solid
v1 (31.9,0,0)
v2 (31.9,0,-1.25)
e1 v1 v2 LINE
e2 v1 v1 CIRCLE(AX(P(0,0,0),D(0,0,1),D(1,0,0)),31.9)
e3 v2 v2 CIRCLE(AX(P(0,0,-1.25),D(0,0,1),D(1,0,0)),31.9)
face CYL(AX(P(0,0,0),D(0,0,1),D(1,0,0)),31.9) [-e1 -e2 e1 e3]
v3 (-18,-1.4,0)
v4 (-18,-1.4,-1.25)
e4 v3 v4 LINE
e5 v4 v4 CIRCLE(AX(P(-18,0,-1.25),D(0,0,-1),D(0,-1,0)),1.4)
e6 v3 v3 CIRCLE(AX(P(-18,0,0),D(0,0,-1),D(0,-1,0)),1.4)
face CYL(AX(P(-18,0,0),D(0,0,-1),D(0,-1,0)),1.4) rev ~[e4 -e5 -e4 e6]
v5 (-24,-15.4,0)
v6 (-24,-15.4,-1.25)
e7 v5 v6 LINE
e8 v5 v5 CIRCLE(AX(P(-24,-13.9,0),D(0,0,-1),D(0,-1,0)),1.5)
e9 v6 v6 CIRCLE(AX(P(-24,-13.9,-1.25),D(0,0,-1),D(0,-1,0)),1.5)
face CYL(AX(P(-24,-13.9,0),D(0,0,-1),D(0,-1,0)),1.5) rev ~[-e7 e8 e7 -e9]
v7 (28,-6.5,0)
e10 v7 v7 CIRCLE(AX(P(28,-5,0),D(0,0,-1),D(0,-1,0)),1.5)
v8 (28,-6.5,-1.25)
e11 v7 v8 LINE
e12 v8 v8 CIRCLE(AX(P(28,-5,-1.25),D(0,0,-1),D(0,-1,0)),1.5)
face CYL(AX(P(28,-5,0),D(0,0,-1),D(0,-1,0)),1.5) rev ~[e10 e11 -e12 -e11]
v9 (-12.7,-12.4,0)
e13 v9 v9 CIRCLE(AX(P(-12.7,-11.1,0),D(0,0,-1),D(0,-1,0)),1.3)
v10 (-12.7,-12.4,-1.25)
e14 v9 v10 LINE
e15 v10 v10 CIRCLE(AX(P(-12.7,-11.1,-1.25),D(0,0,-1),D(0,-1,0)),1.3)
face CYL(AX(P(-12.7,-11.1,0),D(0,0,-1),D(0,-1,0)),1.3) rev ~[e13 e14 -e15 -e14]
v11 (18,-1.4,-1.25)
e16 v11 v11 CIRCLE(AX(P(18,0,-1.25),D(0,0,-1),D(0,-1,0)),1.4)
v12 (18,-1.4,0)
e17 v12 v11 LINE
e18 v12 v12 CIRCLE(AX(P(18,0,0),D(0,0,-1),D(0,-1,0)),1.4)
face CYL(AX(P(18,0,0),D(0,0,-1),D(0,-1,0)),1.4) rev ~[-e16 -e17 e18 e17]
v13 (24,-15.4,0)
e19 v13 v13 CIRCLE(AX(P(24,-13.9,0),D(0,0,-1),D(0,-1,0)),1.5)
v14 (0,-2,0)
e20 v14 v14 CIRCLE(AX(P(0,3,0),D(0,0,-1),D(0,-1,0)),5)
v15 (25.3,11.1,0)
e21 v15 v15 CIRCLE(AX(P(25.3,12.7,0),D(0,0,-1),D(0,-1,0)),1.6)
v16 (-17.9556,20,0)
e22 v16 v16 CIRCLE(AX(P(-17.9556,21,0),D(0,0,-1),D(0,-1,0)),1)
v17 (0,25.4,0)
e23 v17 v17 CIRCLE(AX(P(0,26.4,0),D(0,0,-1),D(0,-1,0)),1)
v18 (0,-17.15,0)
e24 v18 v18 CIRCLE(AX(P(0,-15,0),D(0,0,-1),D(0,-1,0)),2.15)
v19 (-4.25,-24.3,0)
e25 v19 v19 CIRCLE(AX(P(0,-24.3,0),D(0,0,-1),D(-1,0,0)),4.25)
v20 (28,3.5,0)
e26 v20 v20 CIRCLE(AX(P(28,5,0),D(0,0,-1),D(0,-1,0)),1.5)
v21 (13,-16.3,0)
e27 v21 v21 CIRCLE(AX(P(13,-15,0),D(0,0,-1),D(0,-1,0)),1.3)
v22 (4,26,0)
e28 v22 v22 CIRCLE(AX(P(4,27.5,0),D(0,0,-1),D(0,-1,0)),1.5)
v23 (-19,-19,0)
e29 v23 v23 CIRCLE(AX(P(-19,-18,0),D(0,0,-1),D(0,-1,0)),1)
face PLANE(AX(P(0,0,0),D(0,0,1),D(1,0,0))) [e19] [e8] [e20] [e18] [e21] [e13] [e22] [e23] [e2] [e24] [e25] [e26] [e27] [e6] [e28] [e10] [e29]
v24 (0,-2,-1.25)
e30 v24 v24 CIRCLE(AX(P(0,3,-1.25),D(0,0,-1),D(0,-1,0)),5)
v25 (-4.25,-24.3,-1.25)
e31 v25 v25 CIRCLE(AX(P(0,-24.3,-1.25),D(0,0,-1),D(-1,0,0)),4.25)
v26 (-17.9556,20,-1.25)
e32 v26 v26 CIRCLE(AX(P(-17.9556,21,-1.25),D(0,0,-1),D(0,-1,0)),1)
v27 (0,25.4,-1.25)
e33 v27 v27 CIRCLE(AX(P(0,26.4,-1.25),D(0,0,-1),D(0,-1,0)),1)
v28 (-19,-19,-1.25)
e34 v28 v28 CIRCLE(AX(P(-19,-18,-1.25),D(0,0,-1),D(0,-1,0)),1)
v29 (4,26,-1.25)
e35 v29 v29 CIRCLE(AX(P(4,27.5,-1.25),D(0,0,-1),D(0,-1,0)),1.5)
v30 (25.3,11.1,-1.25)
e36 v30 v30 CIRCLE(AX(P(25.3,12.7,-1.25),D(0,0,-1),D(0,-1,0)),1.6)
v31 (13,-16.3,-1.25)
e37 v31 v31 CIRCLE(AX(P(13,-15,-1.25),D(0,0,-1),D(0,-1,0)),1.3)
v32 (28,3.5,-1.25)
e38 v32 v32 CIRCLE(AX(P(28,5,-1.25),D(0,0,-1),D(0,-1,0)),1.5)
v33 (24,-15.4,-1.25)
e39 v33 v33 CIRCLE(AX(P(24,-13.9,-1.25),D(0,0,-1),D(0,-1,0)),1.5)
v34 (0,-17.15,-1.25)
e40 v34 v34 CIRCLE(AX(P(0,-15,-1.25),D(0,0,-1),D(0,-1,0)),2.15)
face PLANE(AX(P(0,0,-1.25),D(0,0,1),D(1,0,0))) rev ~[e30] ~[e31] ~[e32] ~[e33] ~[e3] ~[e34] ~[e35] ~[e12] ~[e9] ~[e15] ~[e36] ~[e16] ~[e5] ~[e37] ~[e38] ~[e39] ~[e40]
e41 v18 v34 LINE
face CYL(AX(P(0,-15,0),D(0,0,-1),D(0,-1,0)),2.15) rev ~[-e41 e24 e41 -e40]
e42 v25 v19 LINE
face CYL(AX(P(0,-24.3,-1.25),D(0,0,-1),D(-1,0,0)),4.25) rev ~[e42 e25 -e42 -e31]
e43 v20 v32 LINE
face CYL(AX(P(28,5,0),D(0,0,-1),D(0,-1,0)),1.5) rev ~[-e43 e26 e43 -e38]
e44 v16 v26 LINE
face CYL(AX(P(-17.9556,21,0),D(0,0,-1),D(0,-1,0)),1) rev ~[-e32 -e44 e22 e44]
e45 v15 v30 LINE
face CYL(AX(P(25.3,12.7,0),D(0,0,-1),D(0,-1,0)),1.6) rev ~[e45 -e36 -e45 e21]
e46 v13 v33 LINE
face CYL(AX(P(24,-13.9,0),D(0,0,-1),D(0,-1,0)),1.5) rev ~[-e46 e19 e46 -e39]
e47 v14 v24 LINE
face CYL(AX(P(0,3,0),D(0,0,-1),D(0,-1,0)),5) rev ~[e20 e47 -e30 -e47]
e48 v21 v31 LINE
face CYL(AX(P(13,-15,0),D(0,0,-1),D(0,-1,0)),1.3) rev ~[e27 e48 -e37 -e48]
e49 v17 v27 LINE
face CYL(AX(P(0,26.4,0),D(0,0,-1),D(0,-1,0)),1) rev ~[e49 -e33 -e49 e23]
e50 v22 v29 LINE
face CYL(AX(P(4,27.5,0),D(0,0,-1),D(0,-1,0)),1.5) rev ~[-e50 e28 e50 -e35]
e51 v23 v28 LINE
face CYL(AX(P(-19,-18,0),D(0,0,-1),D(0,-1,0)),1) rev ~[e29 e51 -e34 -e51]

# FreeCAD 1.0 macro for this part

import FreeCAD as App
import Part
import Sketcher

V = App.Vector

doc = App.newDocument("Part")
body = doc.addObject("PartDesign::Body", "Body")

# Sketch on XY plane
sketch1 = body.newObject("Sketcher::SketchObject", "Sketch")
sketch1.AttachmentSupport = (doc.getObject("XY_Plane"), [""])
sketch1.MapMode = "FlatFace"
sketch1.addGeometry(Part.Circle(V(0, 0, 0), V(0, 0, 1), 31.9), False)
sketch1.addConstraint(Sketcher.Constraint("Coincident", 0, 3, -1, 1))
sketch1.addConstraint(Sketcher.Constraint("Diameter", 0, 63.8))
pad1 = body.newObject("PartDesign::Pad", "Pad")
pad1.Profile = sketch1
pad1.Length = 1.25
pad1.Reversed = True

# Sketch on XY plane
sketch2 = body.newObject("Sketcher::SketchObject", "Sketch001")
sketch2.AttachmentSupport = (doc.getObject("XY_Plane"), [""])
sketch2.MapMode = "FlatFace"
sketch2.addGeometry(Part.Circle(V(-19, -18, 0), V(0, 0, 1), 1), False)
sketch2.addConstraint(Sketcher.Constraint("Diameter", 0, 2.0))
sketch2.addConstraint(Sketcher.Constraint("DistanceX", 0, 3, -1, 1, 19.0))
sketch2.addConstraint(Sketcher.Constraint("DistanceY", 0, 3, -1, 1, 18.0))
doc.recompute()
hole = body.newObject("PartDesign::Hole", "Hole")
hole.Profile = sketch2
hole.ThreadType = "None"
hole.Diameter = 2
hole.DepthType = "ThroughAll"

# Sketch on XY plane
sketch3 = body.newObject("Sketcher::SketchObject", "Sketch002")
sketch3.AttachmentSupport = (doc.getObject("XY_Plane"), [""])
sketch3.MapMode = "FlatFace"
sketch3.addGeometry(Part.Circle(V(-17.9556, 21, 0), V(0, 0, 1), 1), False)
sketch3.addGeometry(Part.Circle(V(0, 26.4, 0), V(0, 0, 1), 1), False)
sketch3.addConstraint(Sketcher.Constraint("Equal", 0, 1))
sketch3.addConstraint(Sketcher.Constraint("PointOnObject", 1, 3, -2))
sketch3.addConstraint(Sketcher.Constraint("Diameter", 0, 2.0))
sketch3.addConstraint(Sketcher.Constraint("DistanceY", -1, 1, 0, 3, 21.0))
sketch3.addConstraint(Sketcher.Constraint("DistanceY", -1, 1, 1, 3, 26.4))
sketch3.addConstraint(Sketcher.Constraint("DistanceX", 0, 3, -1, 1, 17.9556))
doc.recompute()
hole2 = body.newObject("PartDesign::Hole", "Hole001")
hole2.Profile = sketch3
hole2.ThreadType = "None"
hole2.Diameter = 2
hole2.DepthType = "ThroughAll"

# Sketch on XY plane
sketch4 = body.newObject("Sketcher::SketchObject", "Sketch003")
sketch4.AttachmentSupport = (doc.getObject("XY_Plane"), [""])
sketch4.MapMode = "FlatFace"
sketch4.addGeometry(Part.Circle(V(-12.7, -11.1, 0), V(0, 0, 1), 1.3), False)
sketch4.addGeometry(Part.Circle(V(13, -15, 0), V(0, 0, 1), 1.3), False)
sketch4.addConstraint(Sketcher.Constraint("Equal", 0, 1))
sketch4.addConstraint(Sketcher.Constraint("Diameter", 0, 2.6))
sketch4.addConstraint(Sketcher.Constraint("DistanceX", -1, 1, 1, 3, 13.0))
sketch4.addConstraint(Sketcher.Constraint("DistanceY", 1, 3, -1, 1, 15.0))
sketch4.addConstraint(Sketcher.Constraint("DistanceX", 0, 3, -1, 1, 12.7))
sketch4.addConstraint(Sketcher.Constraint("DistanceY", 0, 3, -1, 1, 11.1))
doc.recompute()
hole3 = body.newObject("PartDesign::Hole", "Hole002")
hole3.Profile = sketch4
hole3.ThreadType = "None"
hole3.Diameter = 2.6
hole3.DepthType = "ThroughAll"

# Sketch on XY plane
sketch5 = body.newObject("Sketcher::SketchObject", "Sketch004")
sketch5.AttachmentSupport = (doc.getObject("XY_Plane"), [""])
sketch5.MapMode = "FlatFace"
sketch5.addGeometry(Part.Circle(V(18, 0, 0), V(0, 0, 1), 1.4), False)
sketch5.addGeometry(Part.Circle(V(-18, 0, 0), V(0, 0, 1), 1.4), False)
sketch5.addConstraint(Sketcher.Constraint("Equal", 0, 1))
sketch5.addConstraint(Sketcher.Constraint("Symmetric", 0, 3, 1, 3, -1, 1))
sketch5.addConstraint(Sketcher.Constraint("PointOnObject", 0, 3, -1))
sketch5.addConstraint(Sketcher.Constraint("Diameter", 0, 2.8))
sketch5.addConstraint(Sketcher.Constraint("DistanceX", -1, 1, 0, 3, 18.0))
doc.recompute()
hole4 = body.newObject("PartDesign::Hole", "Hole003")
hole4.Profile = sketch5
hole4.ThreadType = "None"
hole4.Diameter = 2.8
hole4.DepthType = "ThroughAll"

# Sketch on XY plane
sketch6 = body.newObject("Sketcher::SketchObject", "Sketch005")
sketch6.AttachmentSupport = (doc.getObject("XY_Plane"), [""])
sketch6.MapMode = "FlatFace"
sketch6.addGeometry(Part.Circle(V(24, -13.9, 0), V(0, 0, 1), 1.5), False)
sketch6.addGeometry(Part.Circle(V(4, 27.5, 0), V(0, 0, 1), 1.5), False)
sketch6.addGeometry(Part.Circle(V(-24, -13.9, 0), V(0, 0, 1), 1.5), False)
sketch6.addConstraint(Sketcher.Constraint("Equal", 0, 1))
sketch6.addConstraint(Sketcher.Constraint("Equal", 1, 2))
sketch6.addConstraint(Sketcher.Constraint("Symmetric", 0, 3, 2, 3, -2))
sketch6.addConstraint(Sketcher.Constraint("Diameter", 0, 3.0))
sketch6.addConstraint(Sketcher.Constraint("DistanceX", -1, 1, 0, 3, 24.0))
sketch6.addConstraint(Sketcher.Constraint("DistanceX", -1, 1, 1, 3, 4.0))
sketch6.addConstraint(Sketcher.Constraint("DistanceY", 0, 3, -1, 1, 13.9))
sketch6.addConstraint(Sketcher.Constraint("DistanceY", -1, 1, 1, 3, 27.5))
doc.recompute()
hole5 = body.newObject("PartDesign::Hole", "Hole004")
hole5.Profile = sketch6
hole5.ThreadType = "None"
hole5.Diameter = 3
hole5.DepthType = "ThroughAll"

# Sketch on XY plane
sketch7 = body.newObject("Sketcher::SketchObject", "Sketch006")
sketch7.AttachmentSupport = (doc.getObject("XY_Plane"), [""])
sketch7.MapMode = "FlatFace"
sketch7.addGeometry(Part.Circle(V(25.3, 12.7, 0), V(0, 0, 1), 1.6), False)
sketch7.addConstraint(Sketcher.Constraint("Diameter", 0, 3.2))
sketch7.addConstraint(Sketcher.Constraint("DistanceX", -1, 1, 0, 3, 25.3))
sketch7.addConstraint(Sketcher.Constraint("DistanceY", -1, 1, 0, 3, 12.7))
doc.recompute()
hole6 = body.newObject("PartDesign::Hole", "Hole005")
hole6.Profile = sketch7
hole6.ThreadType = "None"
hole6.Diameter = 3.2
hole6.DepthType = "ThroughAll"

# Sketch on XY plane
sketch8 = body.newObject("Sketcher::SketchObject", "Sketch007")
sketch8.AttachmentSupport = (doc.getObject("XY_Plane"), [""])
sketch8.MapMode = "FlatFace"
sketch8.addGeometry(Part.Circle(V(0, -15, 0), V(0, 0, 1), 2.15), False)
sketch8.addConstraint(Sketcher.Constraint("PointOnObject", 0, 3, -2))
sketch8.addConstraint(Sketcher.Constraint("Diameter", 0, 4.3))
sketch8.addConstraint(Sketcher.Constraint("DistanceY", 0, 3, -1, 1, 15.0))
doc.recompute()
hole7 = body.newObject("PartDesign::Hole", "Hole006")
hole7.Profile = sketch8
hole7.ThreadType = "None"
hole7.Diameter = 4.3
hole7.DepthType = "ThroughAll"

# Sketch on XY plane
sketch9 = body.newObject("Sketcher::SketchObject", "Sketch008")
sketch9.AttachmentSupport = (doc.getObject("XY_Plane"), [""])
sketch9.MapMode = "FlatFace"
sketch9.addGeometry(Part.Circle(V(0, 3, 0), V(0, 0, 1), 5), False)
sketch9.addConstraint(Sketcher.Constraint("PointOnObject", 0, 3, -2))
sketch9.addConstraint(Sketcher.Constraint("Diameter", 0, 10.0))
sketch9.addConstraint(Sketcher.Constraint("DistanceY", -1, 1, 0, 3, 3.0))
doc.recompute()
hole8 = body.newObject("PartDesign::Hole", "Hole007")
hole8.Profile = sketch9
hole8.ThreadType = "None"
hole8.Diameter = 10
hole8.DepthType = "ThroughAll"

# Sketch on XY plane
sketch10 = body.newObject("Sketcher::SketchObject", "Sketch009")
sketch10.AttachmentSupport = (doc.getObject("XY_Plane"), [""])
sketch10.MapMode = "FlatFace"
sketch10.addGeometry(Part.Circle(V(28, -5, 0), V(0, 0, 1), 1.5), False)
sketch10.addGeometry(Part.Circle(V(28, 5, 0), V(0, 0, 1), 1.5), False)
sketch10.addConstraint(Sketcher.Constraint("Equal", 0, 1))
sketch10.addConstraint(Sketcher.Constraint("Symmetric", 0, 3, 1, 3, -1))
sketch10.addConstraint(Sketcher.Constraint("Diameter", 0, 3.0))
sketch10.addConstraint(Sketcher.Constraint("DistanceX", -1, 1, 0, 3, 28.0))
sketch10.addConstraint(Sketcher.Constraint("DistanceY", 0, 3, -1, 1, 5.0))
doc.recompute()
hole9 = body.newObject("PartDesign::Hole", "Hole008")
hole9.Profile = sketch10
hole9.ThreadType = "None"
hole9.Diameter = 3
hole9.DepthType = "ThroughAll"

# Sketch on XY plane
sketch11 = body.newObject("Sketcher::SketchObject", "Sketch010")
sketch11.AttachmentSupport = (doc.getObject("XY_Plane"), [""])
sketch11.MapMode = "FlatFace"
sketch11.AttachmentOffset = App.Placement(V(0, 0, -1.25), App.Rotation())
sketch11.addGeometry(Part.Circle(V(0, -24.3, 0), V(0, 0, 1), 4.25), False)
sketch11.addConstraint(Sketcher.Constraint("PointOnObject", 0, 3, -2))
sketch11.addConstraint(Sketcher.Constraint("Diameter", 0, 8.5))
sketch11.addConstraint(Sketcher.Constraint("DistanceY", 0, 3, -1, 1, 24.3))
pocket1 = body.newObject("PartDesign::Pocket", "Pocket")
pocket1.Profile = sketch11
pocket1.Type = "ThroughAll"
pocket1.Reversed = True

doc.recompute()
